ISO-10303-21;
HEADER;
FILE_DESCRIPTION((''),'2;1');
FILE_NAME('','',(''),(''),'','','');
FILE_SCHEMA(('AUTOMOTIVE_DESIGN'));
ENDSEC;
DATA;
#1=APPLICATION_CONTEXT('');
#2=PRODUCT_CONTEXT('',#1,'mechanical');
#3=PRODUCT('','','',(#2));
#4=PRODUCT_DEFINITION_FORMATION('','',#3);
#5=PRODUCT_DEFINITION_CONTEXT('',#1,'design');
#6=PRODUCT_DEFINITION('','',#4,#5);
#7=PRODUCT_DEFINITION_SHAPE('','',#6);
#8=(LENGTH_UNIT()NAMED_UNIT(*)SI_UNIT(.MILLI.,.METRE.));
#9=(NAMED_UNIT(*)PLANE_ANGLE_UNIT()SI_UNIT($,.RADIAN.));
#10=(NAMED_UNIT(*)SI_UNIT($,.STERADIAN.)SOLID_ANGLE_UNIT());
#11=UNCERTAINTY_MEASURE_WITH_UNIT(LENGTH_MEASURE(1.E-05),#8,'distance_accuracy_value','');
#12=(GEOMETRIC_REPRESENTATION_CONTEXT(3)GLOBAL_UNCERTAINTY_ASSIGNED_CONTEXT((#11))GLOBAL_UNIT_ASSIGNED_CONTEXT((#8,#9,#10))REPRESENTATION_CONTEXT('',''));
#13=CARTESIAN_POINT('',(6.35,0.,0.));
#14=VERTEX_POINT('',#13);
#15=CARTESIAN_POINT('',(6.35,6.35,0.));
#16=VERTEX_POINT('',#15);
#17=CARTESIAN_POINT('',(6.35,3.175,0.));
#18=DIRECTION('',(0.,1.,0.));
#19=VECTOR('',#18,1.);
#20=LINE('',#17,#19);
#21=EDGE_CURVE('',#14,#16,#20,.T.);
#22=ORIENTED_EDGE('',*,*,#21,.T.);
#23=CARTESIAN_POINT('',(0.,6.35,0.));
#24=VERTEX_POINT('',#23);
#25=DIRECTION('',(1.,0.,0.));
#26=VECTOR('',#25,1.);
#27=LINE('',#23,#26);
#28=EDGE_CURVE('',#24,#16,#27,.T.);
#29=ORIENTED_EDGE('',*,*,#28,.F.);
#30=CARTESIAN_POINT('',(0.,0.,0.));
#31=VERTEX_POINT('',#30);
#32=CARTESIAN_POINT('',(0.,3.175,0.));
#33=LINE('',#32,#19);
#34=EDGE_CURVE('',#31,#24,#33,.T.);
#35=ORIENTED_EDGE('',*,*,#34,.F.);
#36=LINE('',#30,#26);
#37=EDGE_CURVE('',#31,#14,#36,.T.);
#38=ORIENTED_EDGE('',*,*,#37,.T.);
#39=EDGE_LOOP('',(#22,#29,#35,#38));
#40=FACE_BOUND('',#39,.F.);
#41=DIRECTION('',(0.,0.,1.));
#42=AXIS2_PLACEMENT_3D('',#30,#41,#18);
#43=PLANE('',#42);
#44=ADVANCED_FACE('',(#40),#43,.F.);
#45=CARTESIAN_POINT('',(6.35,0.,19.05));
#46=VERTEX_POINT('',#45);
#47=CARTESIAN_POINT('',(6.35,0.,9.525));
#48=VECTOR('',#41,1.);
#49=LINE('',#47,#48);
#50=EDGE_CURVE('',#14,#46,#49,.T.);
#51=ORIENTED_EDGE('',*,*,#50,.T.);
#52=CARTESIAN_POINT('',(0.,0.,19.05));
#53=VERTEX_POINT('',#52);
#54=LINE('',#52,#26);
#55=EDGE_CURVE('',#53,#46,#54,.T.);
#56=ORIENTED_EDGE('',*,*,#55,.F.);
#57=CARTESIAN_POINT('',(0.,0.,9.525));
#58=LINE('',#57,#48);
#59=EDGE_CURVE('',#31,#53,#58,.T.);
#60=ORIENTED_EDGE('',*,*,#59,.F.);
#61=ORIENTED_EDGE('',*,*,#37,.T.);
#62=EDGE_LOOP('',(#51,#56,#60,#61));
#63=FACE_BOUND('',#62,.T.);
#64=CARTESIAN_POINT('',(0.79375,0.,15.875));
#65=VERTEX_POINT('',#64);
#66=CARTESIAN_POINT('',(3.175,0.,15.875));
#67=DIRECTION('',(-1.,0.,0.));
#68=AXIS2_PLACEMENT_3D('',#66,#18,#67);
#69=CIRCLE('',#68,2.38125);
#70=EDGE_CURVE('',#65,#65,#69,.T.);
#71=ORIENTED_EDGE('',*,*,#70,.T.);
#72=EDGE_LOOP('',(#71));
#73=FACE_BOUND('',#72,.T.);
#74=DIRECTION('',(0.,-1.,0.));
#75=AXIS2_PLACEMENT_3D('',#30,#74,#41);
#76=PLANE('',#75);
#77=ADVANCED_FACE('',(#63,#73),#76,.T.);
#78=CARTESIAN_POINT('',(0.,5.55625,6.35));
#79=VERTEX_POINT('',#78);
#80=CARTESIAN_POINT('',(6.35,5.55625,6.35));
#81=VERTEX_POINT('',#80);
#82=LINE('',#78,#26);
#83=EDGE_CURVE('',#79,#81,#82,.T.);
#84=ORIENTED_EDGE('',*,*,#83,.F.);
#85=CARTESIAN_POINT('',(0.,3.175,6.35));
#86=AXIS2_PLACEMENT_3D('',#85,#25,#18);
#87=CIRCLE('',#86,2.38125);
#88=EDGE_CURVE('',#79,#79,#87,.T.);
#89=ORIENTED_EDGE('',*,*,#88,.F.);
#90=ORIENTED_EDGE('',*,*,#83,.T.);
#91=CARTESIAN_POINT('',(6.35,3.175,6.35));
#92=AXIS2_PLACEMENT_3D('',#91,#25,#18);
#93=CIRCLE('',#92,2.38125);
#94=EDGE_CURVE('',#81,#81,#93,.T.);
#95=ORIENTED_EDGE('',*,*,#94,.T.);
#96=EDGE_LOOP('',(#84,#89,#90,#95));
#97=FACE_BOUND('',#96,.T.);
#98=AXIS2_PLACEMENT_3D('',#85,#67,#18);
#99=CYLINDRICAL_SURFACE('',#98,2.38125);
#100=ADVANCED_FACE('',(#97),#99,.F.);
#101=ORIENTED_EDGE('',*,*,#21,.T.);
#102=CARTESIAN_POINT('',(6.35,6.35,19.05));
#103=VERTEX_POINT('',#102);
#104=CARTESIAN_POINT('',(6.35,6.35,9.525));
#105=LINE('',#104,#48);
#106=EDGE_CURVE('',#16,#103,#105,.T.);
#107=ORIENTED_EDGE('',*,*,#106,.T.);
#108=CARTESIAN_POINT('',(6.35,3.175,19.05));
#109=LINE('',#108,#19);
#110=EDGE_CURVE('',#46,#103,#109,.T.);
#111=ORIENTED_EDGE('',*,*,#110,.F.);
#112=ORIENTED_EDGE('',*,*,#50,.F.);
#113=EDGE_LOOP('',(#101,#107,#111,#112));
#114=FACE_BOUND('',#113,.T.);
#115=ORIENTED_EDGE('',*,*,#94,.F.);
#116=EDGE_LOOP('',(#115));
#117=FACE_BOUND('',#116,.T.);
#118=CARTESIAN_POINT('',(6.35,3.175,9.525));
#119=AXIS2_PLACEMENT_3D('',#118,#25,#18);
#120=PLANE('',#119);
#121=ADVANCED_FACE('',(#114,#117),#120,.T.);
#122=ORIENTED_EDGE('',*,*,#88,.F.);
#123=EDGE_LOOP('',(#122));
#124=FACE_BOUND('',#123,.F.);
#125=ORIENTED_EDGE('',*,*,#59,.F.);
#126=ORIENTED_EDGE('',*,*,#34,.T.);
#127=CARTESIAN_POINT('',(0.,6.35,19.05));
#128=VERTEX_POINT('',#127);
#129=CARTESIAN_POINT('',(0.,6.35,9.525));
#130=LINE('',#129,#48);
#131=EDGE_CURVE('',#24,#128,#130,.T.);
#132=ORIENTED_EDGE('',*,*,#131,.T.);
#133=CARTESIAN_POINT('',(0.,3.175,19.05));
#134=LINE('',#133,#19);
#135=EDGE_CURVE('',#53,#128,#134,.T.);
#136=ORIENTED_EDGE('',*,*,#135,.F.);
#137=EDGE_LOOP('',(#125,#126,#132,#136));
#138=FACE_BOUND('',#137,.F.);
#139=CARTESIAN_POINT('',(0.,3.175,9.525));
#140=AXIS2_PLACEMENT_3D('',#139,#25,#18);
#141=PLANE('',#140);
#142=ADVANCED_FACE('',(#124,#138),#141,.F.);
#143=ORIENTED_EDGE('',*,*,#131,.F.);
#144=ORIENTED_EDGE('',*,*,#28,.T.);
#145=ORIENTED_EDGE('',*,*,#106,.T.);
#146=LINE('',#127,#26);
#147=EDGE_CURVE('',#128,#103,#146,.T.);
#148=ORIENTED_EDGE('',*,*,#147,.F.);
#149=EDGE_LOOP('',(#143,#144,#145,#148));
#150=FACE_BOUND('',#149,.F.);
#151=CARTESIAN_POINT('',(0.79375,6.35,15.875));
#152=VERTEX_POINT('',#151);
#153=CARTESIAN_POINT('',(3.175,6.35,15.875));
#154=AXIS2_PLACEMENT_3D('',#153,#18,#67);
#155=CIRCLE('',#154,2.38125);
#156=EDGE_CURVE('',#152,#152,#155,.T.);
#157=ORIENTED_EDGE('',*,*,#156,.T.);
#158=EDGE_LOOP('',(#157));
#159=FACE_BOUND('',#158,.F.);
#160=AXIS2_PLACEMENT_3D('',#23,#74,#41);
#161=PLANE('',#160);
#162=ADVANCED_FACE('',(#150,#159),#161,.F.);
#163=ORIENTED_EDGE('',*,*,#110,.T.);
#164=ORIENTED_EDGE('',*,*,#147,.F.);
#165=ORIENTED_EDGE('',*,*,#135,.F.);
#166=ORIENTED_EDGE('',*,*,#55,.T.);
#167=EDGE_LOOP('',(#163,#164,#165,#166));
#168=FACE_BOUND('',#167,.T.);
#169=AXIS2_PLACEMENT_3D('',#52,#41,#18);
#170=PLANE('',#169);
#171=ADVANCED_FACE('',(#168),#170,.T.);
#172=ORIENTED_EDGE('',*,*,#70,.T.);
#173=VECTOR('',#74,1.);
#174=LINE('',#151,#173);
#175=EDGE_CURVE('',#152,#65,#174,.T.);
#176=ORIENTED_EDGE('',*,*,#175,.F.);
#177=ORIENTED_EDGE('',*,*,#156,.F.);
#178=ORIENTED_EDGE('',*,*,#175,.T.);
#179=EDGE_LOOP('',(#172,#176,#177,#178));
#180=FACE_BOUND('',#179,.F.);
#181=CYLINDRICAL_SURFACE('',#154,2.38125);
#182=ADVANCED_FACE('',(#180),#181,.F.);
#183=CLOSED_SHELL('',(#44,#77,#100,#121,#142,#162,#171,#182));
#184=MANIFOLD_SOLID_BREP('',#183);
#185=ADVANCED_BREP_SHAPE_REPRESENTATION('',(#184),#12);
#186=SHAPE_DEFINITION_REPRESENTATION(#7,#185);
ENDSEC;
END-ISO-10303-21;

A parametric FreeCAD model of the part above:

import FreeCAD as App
import Part
import Sketcher
Q = App.Units.Quantity

doc = App.newDocument("Part")
params = doc.addObject("Spreadsheet::Sheet", "Params")
for row, (alias, value) in enumerate([
    ("sketch1_diameter", "0.1875 in"),
    ("sketch1_width", "0.25 in"),
    ("sketch1_height", "0.75 in"),
    ("pad1_length", "0.25 in"),
    ("sketch2_diameter", "0.1875 in"),
    ("pocket1_length", "1 in"),
], start=1):
    params.set(f"A{row}", alias)
    params.set(f"B{row}", "=" + value)
    params.setAlias(f"B{row}", alias)

body = doc.addObject("PartDesign::Body", "Body")

# Sketch on YZ plane
sketch1 = doc.addObject("Sketcher::SketchObject", "Sketch")
body.addObject(sketch1)
sketch1.AttachmentSupport = (doc.YZ_Plane, [""])
sketch1.MapMode = "FlatFace"
sketch1.addGeometry([
    Part.LineSegment(App.Vector(0, 19.1, 0), App.Vector(0, 0, 0)),  # 0
    Part.LineSegment(App.Vector(0, 0, 0), App.Vector(6.3, 0, 0)),  # 1
    Part.LineSegment(App.Vector(6.3, 0, 0), App.Vector(6.3, 19.1, 0)),  # 2
    Part.LineSegment(App.Vector(6.3, 19.1, 0), App.Vector(0, 19.1, 0)),  # 3
    Part.Circle(App.Vector(3.2, 6.3, 0), App.Vector(0, 0, 1), 2.4),  # 4
], False)
sketch1.addConstraint([
    Sketcher.Constraint("Coincident", 0, 2, 1, 1),
    Sketcher.Constraint("Coincident", 1, 2, 2, 1),
    Sketcher.Constraint("Coincident", 2, 2, 3, 1),
    Sketcher.Constraint("Coincident", 3, 2, 0, 1),
    Sketcher.Constraint("Vertical", 0),
    Sketcher.Constraint("Horizontal", 1),
    Sketcher.Constraint("Vertical", 2),
    Sketcher.Constraint("Horizontal", 3),
    Sketcher.Constraint("Coincident", 0, 2, -1, 1),
    Sketcher.Constraint("Diameter", 4, Q("0.1875 in")),
    Sketcher.Constraint("DistanceX", 1, 1, 1, 2, Q("0.25 in")),
    Sketcher.Constraint("DistanceY", 0, 2, 0, 1, Q("0.75 in")),
    Sketcher.Constraint("DistanceY", 4, 3, 2, 2, Q("0.5 in")),
    Sketcher.Constraint("DistanceX", -1, 1, 4, 3, Q("0.125 in")),
])
sketch1.setExpression("Constraints[9]", "Params.sketch1_diameter")
sketch1.setExpression("Constraints[10]", "Params.sketch1_width")
sketch1.setExpression("Constraints[11]", "Params.sketch1_height")
pad1 = doc.addObject("PartDesign::Pad", "Pad")
body.addObject(pad1)
pad1.Profile = sketch1
pad1.setExpression("Length", "Params.pad1_length")

# Sketch on XZ plane
sketch2 = doc.addObject("Sketcher::SketchObject", "Sketch001")
body.addObject(sketch2)
sketch2.AttachmentSupport = (doc.XZ_Plane, [""])
sketch2.MapMode = "FlatFace"
sketch2.AttachmentOffset = App.Placement(App.Vector(0, 0, -0.25 * 25.4), App.Rotation())
sketch2.addGeometry(Part.Circle(App.Vector(3.2, 15.9, 0), App.Vector(0, 0, 1), 2.4), False)
sketch2.addConstraint([
    Sketcher.Constraint("Diameter", 0, Q("0.1875 in")),
    Sketcher.Constraint("DistanceX", -1, 1, 0, 3, Q("0.125 in")),
    Sketcher.Constraint("DistanceY", -1, 1, 0, 3, Q("0.625 in")),
])
sketch2.setExpression("Constraints[0]", "Params.sketch2_diameter")
pocket1 = doc.addObject("PartDesign::Pocket", "Pocket")
body.addObject(pocket1)
pocket1.Profile = sketch2
pocket1.setExpression("Length", "Params.pocket1_length")
pocket1.Reversed = True

doc.recompute()
